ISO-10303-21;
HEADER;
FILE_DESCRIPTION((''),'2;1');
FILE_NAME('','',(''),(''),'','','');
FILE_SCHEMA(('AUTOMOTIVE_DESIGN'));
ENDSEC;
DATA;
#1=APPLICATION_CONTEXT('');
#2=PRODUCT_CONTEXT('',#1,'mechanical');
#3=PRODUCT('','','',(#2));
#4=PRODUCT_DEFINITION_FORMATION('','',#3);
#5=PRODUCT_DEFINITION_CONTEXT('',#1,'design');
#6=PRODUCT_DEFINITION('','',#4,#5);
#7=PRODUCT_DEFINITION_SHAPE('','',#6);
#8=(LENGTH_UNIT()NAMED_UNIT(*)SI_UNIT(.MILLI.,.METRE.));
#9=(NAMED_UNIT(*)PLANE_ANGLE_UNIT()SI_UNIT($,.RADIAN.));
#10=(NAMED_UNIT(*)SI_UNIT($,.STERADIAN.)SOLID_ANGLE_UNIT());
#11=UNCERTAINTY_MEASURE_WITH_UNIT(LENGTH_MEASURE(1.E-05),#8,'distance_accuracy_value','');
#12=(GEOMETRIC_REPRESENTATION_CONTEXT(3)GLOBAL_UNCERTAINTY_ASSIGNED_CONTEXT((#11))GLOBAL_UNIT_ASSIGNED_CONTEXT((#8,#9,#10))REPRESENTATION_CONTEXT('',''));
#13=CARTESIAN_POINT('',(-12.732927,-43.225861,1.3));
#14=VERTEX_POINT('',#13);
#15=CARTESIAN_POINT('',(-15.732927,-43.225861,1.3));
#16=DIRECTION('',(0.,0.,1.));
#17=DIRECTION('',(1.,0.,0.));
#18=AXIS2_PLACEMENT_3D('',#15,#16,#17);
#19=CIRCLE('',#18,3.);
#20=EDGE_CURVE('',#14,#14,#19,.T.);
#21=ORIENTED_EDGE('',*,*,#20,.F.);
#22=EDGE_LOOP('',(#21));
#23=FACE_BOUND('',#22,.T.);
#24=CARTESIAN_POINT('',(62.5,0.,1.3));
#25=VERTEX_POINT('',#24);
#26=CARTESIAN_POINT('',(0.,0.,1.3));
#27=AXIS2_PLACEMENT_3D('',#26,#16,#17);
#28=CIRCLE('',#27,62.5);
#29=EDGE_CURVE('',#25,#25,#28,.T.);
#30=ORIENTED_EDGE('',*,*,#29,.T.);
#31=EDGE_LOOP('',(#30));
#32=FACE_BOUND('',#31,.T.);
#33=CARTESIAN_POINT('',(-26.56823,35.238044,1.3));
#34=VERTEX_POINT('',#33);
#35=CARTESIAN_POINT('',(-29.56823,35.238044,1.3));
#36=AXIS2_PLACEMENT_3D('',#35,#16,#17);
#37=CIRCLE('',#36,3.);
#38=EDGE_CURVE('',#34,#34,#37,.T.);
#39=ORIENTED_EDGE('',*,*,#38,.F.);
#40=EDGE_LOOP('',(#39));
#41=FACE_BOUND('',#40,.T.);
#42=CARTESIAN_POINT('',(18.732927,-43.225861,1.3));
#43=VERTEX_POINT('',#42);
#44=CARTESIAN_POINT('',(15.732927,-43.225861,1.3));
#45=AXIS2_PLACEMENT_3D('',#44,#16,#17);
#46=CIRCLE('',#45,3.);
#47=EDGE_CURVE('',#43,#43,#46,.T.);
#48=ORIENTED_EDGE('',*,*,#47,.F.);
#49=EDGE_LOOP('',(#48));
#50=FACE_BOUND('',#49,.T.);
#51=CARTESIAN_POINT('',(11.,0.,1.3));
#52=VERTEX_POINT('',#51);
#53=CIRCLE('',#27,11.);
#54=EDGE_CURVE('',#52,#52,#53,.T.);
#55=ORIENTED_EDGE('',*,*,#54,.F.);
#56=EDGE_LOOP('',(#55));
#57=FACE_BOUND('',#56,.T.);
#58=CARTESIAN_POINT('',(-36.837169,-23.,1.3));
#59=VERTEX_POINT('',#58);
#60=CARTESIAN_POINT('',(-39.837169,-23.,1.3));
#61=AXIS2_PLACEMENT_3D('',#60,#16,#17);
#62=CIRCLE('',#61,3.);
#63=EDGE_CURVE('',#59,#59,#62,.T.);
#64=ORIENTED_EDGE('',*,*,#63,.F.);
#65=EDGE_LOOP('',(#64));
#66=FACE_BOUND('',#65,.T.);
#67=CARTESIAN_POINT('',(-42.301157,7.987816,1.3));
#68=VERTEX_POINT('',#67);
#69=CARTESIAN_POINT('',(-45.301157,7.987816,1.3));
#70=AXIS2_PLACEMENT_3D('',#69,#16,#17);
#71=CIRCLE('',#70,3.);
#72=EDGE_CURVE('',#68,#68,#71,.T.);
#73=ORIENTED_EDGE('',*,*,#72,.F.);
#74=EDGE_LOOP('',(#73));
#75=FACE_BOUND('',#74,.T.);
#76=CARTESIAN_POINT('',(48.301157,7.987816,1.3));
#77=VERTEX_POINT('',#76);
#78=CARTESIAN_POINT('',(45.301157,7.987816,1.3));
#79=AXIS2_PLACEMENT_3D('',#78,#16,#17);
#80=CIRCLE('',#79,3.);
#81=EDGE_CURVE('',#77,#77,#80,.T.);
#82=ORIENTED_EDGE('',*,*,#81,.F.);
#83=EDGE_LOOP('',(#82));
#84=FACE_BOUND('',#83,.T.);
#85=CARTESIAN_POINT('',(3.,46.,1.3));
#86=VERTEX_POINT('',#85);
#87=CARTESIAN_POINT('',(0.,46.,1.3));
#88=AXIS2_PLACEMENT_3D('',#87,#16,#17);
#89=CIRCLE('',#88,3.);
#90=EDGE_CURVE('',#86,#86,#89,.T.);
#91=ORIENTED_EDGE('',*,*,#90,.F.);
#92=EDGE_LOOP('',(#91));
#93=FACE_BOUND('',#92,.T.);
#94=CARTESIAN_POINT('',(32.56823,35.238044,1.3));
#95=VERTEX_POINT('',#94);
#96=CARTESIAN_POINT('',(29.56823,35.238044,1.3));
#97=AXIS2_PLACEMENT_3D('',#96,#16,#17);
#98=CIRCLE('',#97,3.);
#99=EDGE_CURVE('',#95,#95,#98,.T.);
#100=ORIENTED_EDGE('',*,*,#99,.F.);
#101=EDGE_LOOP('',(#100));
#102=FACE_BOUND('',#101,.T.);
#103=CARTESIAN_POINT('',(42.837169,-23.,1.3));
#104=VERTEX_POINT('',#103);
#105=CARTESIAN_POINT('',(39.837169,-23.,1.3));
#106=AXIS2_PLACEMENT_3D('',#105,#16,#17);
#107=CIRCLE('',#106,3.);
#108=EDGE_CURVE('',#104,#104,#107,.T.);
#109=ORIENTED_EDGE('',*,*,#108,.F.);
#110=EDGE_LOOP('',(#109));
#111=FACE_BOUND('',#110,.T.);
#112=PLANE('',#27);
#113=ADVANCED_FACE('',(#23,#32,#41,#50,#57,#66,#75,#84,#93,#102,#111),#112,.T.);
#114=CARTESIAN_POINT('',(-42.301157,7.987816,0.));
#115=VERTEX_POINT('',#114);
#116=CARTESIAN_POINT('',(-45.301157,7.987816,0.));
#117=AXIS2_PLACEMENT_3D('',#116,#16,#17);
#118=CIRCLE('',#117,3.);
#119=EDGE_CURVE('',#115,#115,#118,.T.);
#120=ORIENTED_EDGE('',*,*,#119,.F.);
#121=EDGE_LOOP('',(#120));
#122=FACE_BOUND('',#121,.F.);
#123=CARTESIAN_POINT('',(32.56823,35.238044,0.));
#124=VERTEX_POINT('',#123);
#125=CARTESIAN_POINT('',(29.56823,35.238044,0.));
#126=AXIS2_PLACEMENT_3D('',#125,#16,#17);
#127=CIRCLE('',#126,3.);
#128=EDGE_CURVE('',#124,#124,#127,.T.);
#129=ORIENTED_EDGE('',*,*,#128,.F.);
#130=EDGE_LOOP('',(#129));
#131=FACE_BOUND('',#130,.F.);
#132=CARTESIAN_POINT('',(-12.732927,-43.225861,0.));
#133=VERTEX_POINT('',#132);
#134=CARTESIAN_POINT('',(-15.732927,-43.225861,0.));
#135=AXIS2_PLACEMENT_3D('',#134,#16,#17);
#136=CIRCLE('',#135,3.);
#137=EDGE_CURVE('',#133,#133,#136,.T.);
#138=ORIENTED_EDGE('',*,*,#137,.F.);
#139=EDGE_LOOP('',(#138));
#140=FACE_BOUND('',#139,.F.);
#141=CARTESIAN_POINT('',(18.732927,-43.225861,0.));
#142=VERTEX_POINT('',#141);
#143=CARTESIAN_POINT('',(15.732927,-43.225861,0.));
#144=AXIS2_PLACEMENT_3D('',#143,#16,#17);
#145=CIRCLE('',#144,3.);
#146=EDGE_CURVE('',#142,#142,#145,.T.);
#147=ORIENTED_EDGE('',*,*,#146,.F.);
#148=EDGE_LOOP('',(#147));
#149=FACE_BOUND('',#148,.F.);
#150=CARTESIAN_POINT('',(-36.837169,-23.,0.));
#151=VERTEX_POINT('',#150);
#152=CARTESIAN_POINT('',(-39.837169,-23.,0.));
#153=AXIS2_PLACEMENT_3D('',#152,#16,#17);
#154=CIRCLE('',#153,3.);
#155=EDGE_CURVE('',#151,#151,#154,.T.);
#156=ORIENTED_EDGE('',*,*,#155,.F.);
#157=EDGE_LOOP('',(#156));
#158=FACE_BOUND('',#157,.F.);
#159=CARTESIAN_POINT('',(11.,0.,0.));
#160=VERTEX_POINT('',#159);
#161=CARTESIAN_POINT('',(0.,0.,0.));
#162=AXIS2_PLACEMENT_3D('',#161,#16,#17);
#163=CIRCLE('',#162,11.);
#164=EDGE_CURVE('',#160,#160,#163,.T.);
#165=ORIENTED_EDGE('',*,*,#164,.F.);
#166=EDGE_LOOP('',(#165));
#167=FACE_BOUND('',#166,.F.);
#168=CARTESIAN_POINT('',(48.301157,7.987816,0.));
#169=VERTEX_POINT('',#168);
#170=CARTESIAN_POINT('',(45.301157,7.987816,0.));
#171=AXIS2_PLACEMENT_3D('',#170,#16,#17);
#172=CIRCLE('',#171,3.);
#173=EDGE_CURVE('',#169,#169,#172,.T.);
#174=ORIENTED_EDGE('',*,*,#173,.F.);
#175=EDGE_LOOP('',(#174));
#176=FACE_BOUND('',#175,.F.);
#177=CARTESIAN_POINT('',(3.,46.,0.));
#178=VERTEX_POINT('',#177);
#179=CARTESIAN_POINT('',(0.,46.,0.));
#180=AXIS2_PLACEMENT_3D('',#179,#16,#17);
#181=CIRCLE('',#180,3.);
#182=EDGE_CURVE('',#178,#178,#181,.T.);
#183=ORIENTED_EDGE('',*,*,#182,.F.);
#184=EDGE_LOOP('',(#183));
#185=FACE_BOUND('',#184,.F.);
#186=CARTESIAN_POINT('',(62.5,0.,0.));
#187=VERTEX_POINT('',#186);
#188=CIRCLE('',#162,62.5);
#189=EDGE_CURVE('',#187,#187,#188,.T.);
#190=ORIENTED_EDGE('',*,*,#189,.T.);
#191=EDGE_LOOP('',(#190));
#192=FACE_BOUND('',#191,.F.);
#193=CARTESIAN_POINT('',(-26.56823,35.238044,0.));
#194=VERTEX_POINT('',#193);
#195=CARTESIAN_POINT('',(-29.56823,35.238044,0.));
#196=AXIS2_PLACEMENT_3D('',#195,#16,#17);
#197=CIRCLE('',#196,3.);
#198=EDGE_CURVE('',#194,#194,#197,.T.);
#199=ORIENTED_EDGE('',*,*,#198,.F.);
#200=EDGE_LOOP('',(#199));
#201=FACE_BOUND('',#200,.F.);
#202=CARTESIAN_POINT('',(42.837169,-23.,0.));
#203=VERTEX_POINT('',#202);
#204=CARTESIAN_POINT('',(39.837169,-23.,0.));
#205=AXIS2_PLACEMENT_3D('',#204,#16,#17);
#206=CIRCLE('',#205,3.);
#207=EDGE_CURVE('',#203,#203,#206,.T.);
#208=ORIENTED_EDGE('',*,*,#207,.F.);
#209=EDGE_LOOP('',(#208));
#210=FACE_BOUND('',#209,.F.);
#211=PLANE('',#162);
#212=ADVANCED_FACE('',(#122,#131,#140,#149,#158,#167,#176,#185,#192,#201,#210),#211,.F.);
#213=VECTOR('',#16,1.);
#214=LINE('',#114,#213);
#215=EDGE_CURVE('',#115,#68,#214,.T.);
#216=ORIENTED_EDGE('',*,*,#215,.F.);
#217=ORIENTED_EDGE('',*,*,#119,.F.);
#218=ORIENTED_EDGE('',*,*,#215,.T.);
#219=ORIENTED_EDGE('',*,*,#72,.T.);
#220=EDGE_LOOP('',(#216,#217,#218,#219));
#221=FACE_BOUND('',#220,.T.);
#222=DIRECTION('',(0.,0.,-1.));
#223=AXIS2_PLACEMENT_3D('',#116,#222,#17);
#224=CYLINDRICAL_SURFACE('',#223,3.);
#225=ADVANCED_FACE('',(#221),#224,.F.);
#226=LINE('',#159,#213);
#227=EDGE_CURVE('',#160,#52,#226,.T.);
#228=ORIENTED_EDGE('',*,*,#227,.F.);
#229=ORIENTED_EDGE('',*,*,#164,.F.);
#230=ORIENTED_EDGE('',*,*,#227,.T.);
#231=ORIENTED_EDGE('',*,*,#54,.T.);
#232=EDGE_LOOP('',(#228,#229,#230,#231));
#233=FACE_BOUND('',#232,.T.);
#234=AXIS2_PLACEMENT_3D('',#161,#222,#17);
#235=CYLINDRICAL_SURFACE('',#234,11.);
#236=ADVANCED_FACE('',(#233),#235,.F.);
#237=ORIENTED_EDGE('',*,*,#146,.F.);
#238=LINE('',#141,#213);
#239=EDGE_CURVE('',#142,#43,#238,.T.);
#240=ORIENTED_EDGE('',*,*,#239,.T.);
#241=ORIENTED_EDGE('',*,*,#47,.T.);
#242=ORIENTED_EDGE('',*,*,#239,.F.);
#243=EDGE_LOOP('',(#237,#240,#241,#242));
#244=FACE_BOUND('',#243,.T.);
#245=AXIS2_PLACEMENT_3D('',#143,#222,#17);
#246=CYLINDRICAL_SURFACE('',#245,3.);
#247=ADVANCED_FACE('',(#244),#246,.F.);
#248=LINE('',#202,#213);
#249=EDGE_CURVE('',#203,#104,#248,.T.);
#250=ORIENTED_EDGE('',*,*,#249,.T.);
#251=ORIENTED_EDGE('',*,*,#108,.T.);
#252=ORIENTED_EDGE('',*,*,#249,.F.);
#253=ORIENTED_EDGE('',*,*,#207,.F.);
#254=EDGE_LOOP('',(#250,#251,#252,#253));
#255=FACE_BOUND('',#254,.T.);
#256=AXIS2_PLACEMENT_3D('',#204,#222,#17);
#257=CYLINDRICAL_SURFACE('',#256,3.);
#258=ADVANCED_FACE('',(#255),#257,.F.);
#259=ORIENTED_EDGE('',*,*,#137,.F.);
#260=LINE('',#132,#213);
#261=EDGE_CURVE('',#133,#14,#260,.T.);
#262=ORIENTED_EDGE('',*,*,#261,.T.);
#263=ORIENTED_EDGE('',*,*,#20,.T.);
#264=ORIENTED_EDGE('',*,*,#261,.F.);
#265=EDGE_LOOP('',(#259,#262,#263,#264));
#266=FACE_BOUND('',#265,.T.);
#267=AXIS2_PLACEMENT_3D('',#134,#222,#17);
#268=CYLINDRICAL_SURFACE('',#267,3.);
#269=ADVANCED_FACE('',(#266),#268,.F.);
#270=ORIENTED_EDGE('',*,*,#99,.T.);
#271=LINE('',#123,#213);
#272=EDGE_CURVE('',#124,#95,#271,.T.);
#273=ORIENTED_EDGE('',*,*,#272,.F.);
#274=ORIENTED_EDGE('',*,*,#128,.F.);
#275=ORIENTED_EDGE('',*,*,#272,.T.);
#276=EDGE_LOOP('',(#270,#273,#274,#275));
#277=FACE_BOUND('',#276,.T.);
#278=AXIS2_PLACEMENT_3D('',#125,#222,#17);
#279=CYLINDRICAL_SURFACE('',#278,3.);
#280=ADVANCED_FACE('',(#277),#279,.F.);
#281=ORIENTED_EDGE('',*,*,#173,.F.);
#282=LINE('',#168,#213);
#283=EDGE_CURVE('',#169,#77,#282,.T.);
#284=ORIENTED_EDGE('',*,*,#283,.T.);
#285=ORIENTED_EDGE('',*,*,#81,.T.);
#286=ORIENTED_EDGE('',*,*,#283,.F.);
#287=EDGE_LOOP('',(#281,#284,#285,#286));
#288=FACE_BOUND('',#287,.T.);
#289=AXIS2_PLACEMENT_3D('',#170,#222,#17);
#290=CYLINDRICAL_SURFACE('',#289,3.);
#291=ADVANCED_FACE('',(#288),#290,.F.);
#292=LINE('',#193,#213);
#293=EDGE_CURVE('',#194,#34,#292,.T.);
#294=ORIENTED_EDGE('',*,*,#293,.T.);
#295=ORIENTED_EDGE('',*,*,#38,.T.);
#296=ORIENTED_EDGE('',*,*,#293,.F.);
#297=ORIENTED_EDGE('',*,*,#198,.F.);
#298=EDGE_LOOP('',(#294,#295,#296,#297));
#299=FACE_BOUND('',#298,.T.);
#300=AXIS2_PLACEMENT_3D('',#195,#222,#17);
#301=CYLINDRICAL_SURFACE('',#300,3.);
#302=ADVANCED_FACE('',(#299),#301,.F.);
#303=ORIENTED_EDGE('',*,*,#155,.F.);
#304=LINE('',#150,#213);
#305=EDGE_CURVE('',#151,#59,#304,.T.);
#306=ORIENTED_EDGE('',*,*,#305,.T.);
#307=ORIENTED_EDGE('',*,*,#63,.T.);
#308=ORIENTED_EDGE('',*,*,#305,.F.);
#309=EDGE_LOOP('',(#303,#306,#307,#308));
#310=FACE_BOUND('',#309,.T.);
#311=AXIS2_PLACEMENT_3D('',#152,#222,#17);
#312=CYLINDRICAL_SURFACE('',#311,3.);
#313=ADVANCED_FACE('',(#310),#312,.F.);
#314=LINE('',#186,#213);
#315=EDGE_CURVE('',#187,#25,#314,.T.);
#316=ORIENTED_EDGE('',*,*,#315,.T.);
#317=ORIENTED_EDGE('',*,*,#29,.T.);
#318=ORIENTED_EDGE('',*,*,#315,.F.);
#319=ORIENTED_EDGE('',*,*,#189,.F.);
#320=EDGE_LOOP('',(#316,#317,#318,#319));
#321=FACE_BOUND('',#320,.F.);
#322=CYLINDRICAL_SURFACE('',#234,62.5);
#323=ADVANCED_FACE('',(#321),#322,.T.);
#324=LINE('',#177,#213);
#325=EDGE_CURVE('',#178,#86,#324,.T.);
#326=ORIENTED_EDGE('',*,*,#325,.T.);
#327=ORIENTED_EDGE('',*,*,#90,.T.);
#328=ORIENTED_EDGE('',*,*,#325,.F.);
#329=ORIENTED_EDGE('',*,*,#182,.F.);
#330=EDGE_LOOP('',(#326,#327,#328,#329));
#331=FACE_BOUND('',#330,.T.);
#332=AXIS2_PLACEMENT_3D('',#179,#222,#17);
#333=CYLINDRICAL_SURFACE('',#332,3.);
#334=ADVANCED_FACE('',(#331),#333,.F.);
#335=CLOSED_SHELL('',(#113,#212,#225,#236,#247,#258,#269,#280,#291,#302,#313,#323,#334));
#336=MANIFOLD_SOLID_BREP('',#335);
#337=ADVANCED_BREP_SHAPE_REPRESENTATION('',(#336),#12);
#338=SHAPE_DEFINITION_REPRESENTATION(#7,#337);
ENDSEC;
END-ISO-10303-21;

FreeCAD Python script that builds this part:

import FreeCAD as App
import Part
import Sketcher
Q = App.Units.Quantity

doc = App.newDocument("Part")
body = doc.addObject("PartDesign::Body", "Body")

# Sketch on XY plane
sketch1 = body.newObject("Sketcher::SketchObject", "Sketch")
sketch1.AttachmentSupport = (doc.getObject("XY_Plane"), [""])
sketch1.MapMode = "FlatFace"
sketch1.addGeometry([
    Part.Circle(App.Vector(0, 0, 0), App.Vector(0, 0, 1), 62.5),  # 0
    Part.Circle(App.Vector(-39.8, -23, 0), App.Vector(0, 0, 1), 3),  # 1
    Part.Circle(App.Vector(-15.7, -43.2, 0), App.Vector(0, 0, 1), 3),  # 2
    Part.Circle(App.Vector(15.7, -43.2, 0), App.Vector(0, 0, 1), 3),  # 3
    Part.Circle(App.Vector(39.8, -23, 0), App.Vector(0, 0, 1), 3),  # 4
    Part.Circle(App.Vector(0, 0, 0), App.Vector(0, 0, 1), 11),  # 5
    Part.Circle(App.Vector(-45.3, 8, 0), App.Vector(0, 0, 1), 3),  # 6
    Part.Circle(App.Vector(-29.6, 35.2, 0), App.Vector(0, 0, 1), 3),  # 7
    Part.Circle(App.Vector(45.3, 8, 0), App.Vector(0, 0, 1), 3),  # 8
    Part.Circle(App.Vector(0, 46, 0), App.Vector(0, 0, 1), 3),  # 9
    Part.Circle(App.Vector(29.6, 35.2, 0), App.Vector(0, 0, 1), 3),  # 10
], False)
sketch1.addConstraint([
    Sketcher.Constraint("Coincident", 0, 3, -1, 1),
    Sketcher.Constraint("Coincident", 5, 3, -1, 1),
    Sketcher.Constraint("Equal", 1, 2),
    Sketcher.Constraint("Equal", 2, 3),
    Sketcher.Constraint("Equal", 3, 4),
    Sketcher.Constraint("Equal", 4, 6),
    Sketcher.Constraint("Equal", 6, 7),
    Sketcher.Constraint("Equal", 7, 8),
    Sketcher.Constraint("Equal", 8, 9),
    Sketcher.Constraint("Equal", 9, 10),
    Sketcher.Constraint("Symmetric", 2, 3, 3, 3, -2),
    Sketcher.Constraint("Symmetric", 1, 3, 4, 3, -2),
    Sketcher.Constraint("Symmetric", 6, 3, 8, 3, -2),
    Sketcher.Constraint("Symmetric", 7, 3, 10, 3, -2),
    Sketcher.Constraint("PointOnObject", 9, 3, -2),
    Sketcher.Constraint("Diameter", 0, Q("125 mm")),
    Sketcher.Constraint("Diameter", 1, Q("6 mm")),
    Sketcher.Constraint("Diameter", 5, Q("22 mm")),
    Sketcher.Constraint("DistanceY", 1, 3, -1, 1, Q("23 mm")),
    Sketcher.Constraint("DistanceY", -1, 1, 9, 3, Q("46 mm")),
    Sketcher.Constraint("DistanceX", 1, 3, -1, 1, Q("39.837169 mm")),
    Sketcher.Constraint("DistanceY", 2, 3, -1, 1, Q("43.225861 mm")),
    Sketcher.Constraint("DistanceX", 7, 3, -1, 1, Q("29.56823 mm")),
    Sketcher.Constraint("DistanceX", 6, 3, 1, 3, Q("5.463988 mm")),
    Sketcher.Constraint("DistanceX", 6, 3, 2, 3, Q("29.56823 mm")),
    Sketcher.Constraint("DistanceY", 6, 3, 7, 3, Q("27.250228 mm")),
    Sketcher.Constraint("DistanceY", -1, 1, 6, 3, Q("7.987816 mm")),
])
pad1 = body.newObject("PartDesign::Pad", "Pad")
pad1.Profile = sketch1
pad1.Length = 1.3

doc.recompute()
